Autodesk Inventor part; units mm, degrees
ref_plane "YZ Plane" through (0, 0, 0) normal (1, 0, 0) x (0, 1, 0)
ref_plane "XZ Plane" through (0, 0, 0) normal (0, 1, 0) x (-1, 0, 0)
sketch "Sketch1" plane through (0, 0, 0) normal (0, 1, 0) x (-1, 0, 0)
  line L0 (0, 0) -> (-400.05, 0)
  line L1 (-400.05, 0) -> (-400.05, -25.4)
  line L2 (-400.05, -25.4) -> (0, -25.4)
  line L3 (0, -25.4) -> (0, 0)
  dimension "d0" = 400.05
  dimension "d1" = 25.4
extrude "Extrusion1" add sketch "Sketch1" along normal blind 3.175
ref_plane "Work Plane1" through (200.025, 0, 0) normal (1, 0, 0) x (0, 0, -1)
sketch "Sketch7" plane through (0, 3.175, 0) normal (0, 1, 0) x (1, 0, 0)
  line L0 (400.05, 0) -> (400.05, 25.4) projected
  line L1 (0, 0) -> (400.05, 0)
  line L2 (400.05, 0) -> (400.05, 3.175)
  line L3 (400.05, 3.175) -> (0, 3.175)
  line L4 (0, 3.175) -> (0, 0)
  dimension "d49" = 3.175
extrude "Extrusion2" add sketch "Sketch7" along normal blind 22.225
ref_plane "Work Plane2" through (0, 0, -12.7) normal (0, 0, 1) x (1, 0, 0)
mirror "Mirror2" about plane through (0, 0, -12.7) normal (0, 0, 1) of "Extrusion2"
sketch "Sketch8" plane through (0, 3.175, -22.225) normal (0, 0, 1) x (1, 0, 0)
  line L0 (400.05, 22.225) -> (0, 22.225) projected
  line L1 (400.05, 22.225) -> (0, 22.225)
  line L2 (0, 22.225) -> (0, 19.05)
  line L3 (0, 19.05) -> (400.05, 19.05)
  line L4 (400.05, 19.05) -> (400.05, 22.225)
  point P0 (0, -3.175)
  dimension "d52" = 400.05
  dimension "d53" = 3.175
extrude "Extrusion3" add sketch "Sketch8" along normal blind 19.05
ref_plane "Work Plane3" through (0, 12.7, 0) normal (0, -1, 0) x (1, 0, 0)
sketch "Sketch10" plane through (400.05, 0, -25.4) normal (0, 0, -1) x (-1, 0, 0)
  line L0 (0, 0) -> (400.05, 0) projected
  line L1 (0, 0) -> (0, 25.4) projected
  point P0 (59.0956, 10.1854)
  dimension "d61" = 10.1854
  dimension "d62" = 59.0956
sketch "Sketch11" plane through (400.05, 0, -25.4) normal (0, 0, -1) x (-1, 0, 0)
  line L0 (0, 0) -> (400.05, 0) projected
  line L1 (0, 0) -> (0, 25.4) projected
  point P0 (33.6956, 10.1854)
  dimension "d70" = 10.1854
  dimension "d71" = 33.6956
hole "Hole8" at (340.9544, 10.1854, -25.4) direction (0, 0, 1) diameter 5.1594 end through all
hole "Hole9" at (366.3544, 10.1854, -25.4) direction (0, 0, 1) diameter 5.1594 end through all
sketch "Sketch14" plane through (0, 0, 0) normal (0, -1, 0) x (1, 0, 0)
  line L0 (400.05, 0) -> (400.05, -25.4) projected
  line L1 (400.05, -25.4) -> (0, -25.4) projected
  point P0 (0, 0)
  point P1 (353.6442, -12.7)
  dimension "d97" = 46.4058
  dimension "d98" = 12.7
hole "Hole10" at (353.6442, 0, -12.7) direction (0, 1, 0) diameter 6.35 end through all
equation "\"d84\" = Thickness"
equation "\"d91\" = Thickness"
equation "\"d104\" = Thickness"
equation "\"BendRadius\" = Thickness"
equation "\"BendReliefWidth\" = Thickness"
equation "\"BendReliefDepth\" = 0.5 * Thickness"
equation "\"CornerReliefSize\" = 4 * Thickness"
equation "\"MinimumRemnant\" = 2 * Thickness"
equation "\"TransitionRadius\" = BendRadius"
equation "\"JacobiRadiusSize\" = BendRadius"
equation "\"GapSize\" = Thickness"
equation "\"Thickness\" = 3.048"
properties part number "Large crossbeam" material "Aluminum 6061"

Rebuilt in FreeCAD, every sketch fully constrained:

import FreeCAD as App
import Part
import Sketcher

V = App.Vector
Q = App.Units.Quantity


def add_polygon(sketch, points):
    """Adds a closed chain of lines whose ends are joined by coincident constraints."""
    first, n = sketch.GeometryCount, len(points)
    for a, b in zip(points, points[1:] + points[:1]):
        sketch.addGeometry(Part.LineSegment(App.Vector(*a, 0), App.Vector(*b, 0)), False)
    for i in range(n):
        sketch.addConstraint(Sketcher.Constraint("Coincident", first + i, 2, first + (i + 1) % n, 1))

doc = App.newDocument("Part")
body = doc.addObject("PartDesign::Body", "Body")

# Sketch on XZ plane
sketch1 = body.newObject("Sketcher::SketchObject", "Sketch")
sketch1.AttachmentSupport = (doc.getObject("XZ_Plane"), [""])
sketch1.MapMode = "FlatFace"
add_polygon(sketch1, [(0, -25), (0, 0), (400, 0), (400, -25)])  # lines 0-3
sketch1.addConstraint(Sketcher.Constraint("Vertical", 0))
sketch1.addConstraint(Sketcher.Constraint("Horizontal", 1))
sketch1.addConstraint(Sketcher.Constraint("Vertical", 2))
sketch1.addConstraint(Sketcher.Constraint("Horizontal", 3))
sketch1.addConstraint(Sketcher.Constraint("Coincident", 0, 2, -1, 1))
sketch1.addConstraint(Sketcher.Constraint("DistanceY", 0, 1, 0, 2, Q("1 in")))
sketch1.addConstraint(Sketcher.Constraint("DistanceX", 1, 1, 1, 2, Q("15.75 in")))
pad1 = body.newObject("PartDesign::Pad", "Pad")
pad1.Profile = sketch1
pad1.Length = Q("0.125 in")
pad1.Reversed = True

# Sketch on XZ plane
sketch2 = body.newObject("Sketcher::SketchObject", "Sketch001")
sketch2.AttachmentSupport = (doc.getObject("XZ_Plane"), [""])
sketch2.MapMode = "FlatFace"
sketch2.AttachmentOffset = App.Placement(V(0, 0, -0.125 * 25.4), App.Rotation())
add_polygon(sketch2, [(0, 0), (400.1, 0), (400.1, -3.2), (0, -3.2)])  # lines 0-3
sketch2.addConstraint(Sketcher.Constraint("Horizontal", 0))
sketch2.addConstraint(Sketcher.Constraint("Vertical", 1))
sketch2.addConstraint(Sketcher.Constraint("Horizontal", 2))
sketch2.addConstraint(Sketcher.Constraint("Vertical", 3))
sketch2.addConstraint(Sketcher.Constraint("Coincident", 3, 2, -1, 1))
sketch2.addConstraint(Sketcher.Constraint("DistanceY", 1, 2, 1, 1, Q("0.125 in")))
sketch2.addConstraint(Sketcher.Constraint("DistanceX", 0, 1, 0, 2, Q("15.75 in")))
pad2 = body.newObject("PartDesign::Pad", "Pad001")
pad2.Profile = sketch2
pad2.Length = Q("0.875 in")
pad2.Reversed = True
doc.recompute()

datumplane = body.newObject("PartDesign::Plane", "DatumPlane")
datumplane.AttachmentSupport = (doc.getObject("XY_Plane"), [""])
datumplane.MapMode = "FlatFace"
datumplane.AttachmentOffset = App.Placement(V(0, 0, -0.5 * 25.4), App.Rotation())
mirrored = body.newObject("PartDesign::Mirrored", "Mirrored")
mirrored.Originals = [pad2]
mirrored.MirrorPlane = (datumplane, [""])
body.Tip = mirrored

# Sketch on XY plane
sketch3 = body.newObject("Sketcher::SketchObject", "Sketch002")
sketch3.AttachmentSupport = (doc.getObject("XY_Plane"), [""])
sketch3.MapMode = "FlatFace"
sketch3.AttachmentOffset = App.Placement(V(0, 0, -0.875 * 25.4), App.Rotation())
add_polygon(sketch3, [(400.1, 22.2), (400.1, 25.4), (0, 25.4), (0, 22.2)])  # lines 0-3
sketch3.addConstraint(Sketcher.Constraint("Vertical", 0))
sketch3.addConstraint(Sketcher.Constraint("Horizontal", 1))
sketch3.addConstraint(Sketcher.Constraint("Vertical", 2))
sketch3.addConstraint(Sketcher.Constraint("Horizontal", 3))
sketch3.addConstraint(Sketcher.Constraint("PointOnObject", 1, 2, -2))
sketch3.addConstraint(Sketcher.Constraint("DistanceX", 1, 2, 1, 1, Q("15.75 in")))
sketch3.addConstraint(Sketcher.Constraint("DistanceY", 0, 1, 0, 2, Q("0.125 in")))
sketch3.addConstraint(Sketcher.Constraint("DistanceY", -1, 1, 0, 2, Q("1 in")))
pad3 = body.newObject("PartDesign::Pad", "Pad002")
pad3.Profile = sketch3
pad3.Length = Q("0.75 in")

# Sketch on XY plane
sketch4 = body.newObject("Sketcher::SketchObject", "Sketch003")
sketch4.AttachmentSupport = (doc.getObject("XY_Plane"), [""])
sketch4.MapMode = "FlatFace"
sketch4.AttachmentOffset = App.Placement(V(0, 0, -1 * 25.4), App.Rotation())
sketch4.addGeometry(Part.Circle(V(341, 10.2, 0), V(0, 0, 1), 2.6), False)
sketch4.addConstraint(Sketcher.Constraint("Diameter", 0, Q("0.203126 in")))
sketch4.addConstraint(Sketcher.Constraint("DistanceY", -1, 1, 0, 3, Q("0.401 in")))
sketch4.addConstraint(Sketcher.Constraint("DistanceX", -1, 1, 0, 3, Q("13.4234 in")))
doc.recompute()
hole = body.newObject("PartDesign::Hole", "Hole")
hole.Profile = sketch4
hole.ThreadType = "None"
hole.Diameter = Q("0.203126 in")
hole.DepthType = "ThroughAll"
hole.Reversed = True

# Sketch on XY plane
sketch5 = body.newObject("Sketcher::SketchObject", "Sketch004")
sketch5.AttachmentSupport = (doc.getObject("XY_Plane"), [""])
sketch5.MapMode = "FlatFace"
sketch5.AttachmentOffset = App.Placement(V(0, 0, -1 * 25.4), App.Rotation())
sketch5.addGeometry(Part.Circle(V(366.4, 10.2, 0), V(0, 0, 1), 2.6), False)
sketch5.addConstraint(Sketcher.Constraint("Diameter", 0, Q("0.203126 in")))
sketch5.addConstraint(Sketcher.Constraint("DistanceY", -1, 1, 0, 3, Q("0.401 in")))
sketch5.addConstraint(Sketcher.Constraint("DistanceX", -1, 1, 0, 3, Q("14.4234 in")))
doc.recompute()
hole2 = body.newObject("PartDesign::Hole", "Hole001")
hole2.Profile = sketch5
hole2.ThreadType = "None"
hole2.Diameter = Q("0.203126 in")
hole2.DepthType = "ThroughAll"
hole2.Reversed = True

# Sketch on XZ plane
sketch6 = body.newObject("Sketcher::SketchObject", "Sketch005")
sketch6.AttachmentSupport = (doc.getObject("XZ_Plane"), [""])
sketch6.MapMode = "FlatFace"
sketch6.addGeometry(Part.Circle(V(353.6, -12.7, 0), V(0, 0, 1), 3.2), False)
sketch6.addConstraint(Sketcher.Constraint("Diameter", 0, Q("0.25 in")))
sketch6.addConstraint(Sketcher.Constraint("DistanceY", 0, 3, -1, 1, Q("0.5 in")))
sketch6.addConstraint(Sketcher.Constraint("DistanceX", -1, 1, 0, 3, Q("13.923 in")))
doc.recompute()
hole3 = body.newObject("PartDesign::Hole", "Hole002")
hole3.Profile = sketch6
hole3.ThreadType = "None"
hole3.Diameter = Q("0.25 in")
hole3.DepthType = "ThroughAll"

doc.recompute()
